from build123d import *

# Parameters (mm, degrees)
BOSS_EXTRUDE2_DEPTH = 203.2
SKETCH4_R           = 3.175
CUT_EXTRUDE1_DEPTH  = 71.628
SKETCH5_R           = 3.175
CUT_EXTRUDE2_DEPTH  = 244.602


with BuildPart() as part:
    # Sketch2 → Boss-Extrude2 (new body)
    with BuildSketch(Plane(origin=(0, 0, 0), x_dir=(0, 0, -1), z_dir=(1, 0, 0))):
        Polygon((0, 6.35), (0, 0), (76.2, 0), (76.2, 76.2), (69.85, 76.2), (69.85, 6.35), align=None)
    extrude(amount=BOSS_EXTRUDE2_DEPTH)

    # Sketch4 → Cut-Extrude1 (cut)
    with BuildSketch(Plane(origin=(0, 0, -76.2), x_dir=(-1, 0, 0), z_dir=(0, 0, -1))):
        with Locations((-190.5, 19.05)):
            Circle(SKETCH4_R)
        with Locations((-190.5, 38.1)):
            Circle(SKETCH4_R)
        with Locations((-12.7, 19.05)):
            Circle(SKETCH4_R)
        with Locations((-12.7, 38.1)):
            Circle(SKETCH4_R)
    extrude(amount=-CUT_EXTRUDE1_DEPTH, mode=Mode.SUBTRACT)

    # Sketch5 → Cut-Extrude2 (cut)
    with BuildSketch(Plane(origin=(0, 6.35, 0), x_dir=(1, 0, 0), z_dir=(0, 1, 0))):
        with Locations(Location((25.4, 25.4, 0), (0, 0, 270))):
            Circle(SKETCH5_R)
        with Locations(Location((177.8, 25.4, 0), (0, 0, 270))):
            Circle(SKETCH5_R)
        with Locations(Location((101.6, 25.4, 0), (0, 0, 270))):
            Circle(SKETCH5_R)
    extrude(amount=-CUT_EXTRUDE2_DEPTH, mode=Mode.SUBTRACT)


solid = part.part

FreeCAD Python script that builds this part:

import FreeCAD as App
import Part
import Sketcher
from FreeCAD import Vector
Q = App.Units.Quantity

doc = App.newDocument("Part")
body = doc.addObject("PartDesign::Body", "Body")

# Sketch on YZ plane
sketch1 = body.newObject("Sketcher::SketchObject", "Sketch")
sketch1.AttachmentSupport = (doc.getObject("YZ_Plane"), [""])
sketch1.MapMode = "FlatFace"
sketch1.addGeometry([
    Part.LineSegment(Vector(6, 0, 0), Vector(0, 0, 0)),  # 0
    Part.LineSegment(Vector(0, 0, 0), Vector(0, -76, 0)),  # 1
    Part.LineSegment(Vector(0, -76, 0), Vector(76, -76, 0)),  # 2
    Part.LineSegment(Vector(76, -76, 0), Vector(76, -70, 0)),  # 3
    Part.LineSegment(Vector(76, -70, 0), Vector(6, -70, 0)),  # 4
    Part.LineSegment(Vector(6, -70, 0), Vector(6, 0, 0)),  # 5
], False)
sketch1.addConstraint([
    Sketcher.Constraint("Coincident", 0, 2, 1, 1),
    Sketcher.Constraint("Coincident", 1, 2, 2, 1),
    Sketcher.Constraint("Coincident", 2, 2, 3, 1),
    Sketcher.Constraint("Coincident", 3, 2, 4, 1),
    Sketcher.Constraint("Coincident", 4, 2, 5, 1),
    Sketcher.Constraint("Coincident", 5, 2, 0, 1),
    Sketcher.Constraint("Horizontal", 0),
    Sketcher.Constraint("Vertical", 1),
    Sketcher.Constraint("Horizontal", 2),
    Sketcher.Constraint("Vertical", 3),
    Sketcher.Constraint("Horizontal", 4),
    Sketcher.Constraint("Vertical", 5),
    Sketcher.Constraint("Coincident", 0, 2, -1, 1),
    Sketcher.Constraint("Equal", 2, 1),
    Sketcher.Constraint("Equal", 0, 3),
    Sketcher.Constraint("DistanceX", 2, 1, 2, 2, Q("3 in")),
    Sketcher.Constraint("DistanceX", 0, 2, 0, 1, Q("0.25 in")),
])
pad1 = body.newObject("PartDesign::Pad", "Pad")
pad1.Profile = sketch1
pad1.Length = Q("8 in")

# Sketch on XY plane
sketch2 = body.newObject("Sketcher::SketchObject", "Sketch001")
sketch2.AttachmentSupport = (doc.getObject("XY_Plane"), [""])
sketch2.MapMode = "FlatFace"
sketch2.AttachmentOffset = App.Placement(Vector(0, 0, -3 * 25.4), App.Rotation())
sketch2.addGeometry([
    Part.Circle(Vector(190.5, 19.1, 0), Vector(0, 0, 1), 3.2),
    Part.Circle(Vector(190.5, 38.1, 0), Vector(0, 0, 1), 3.2),
    Part.Circle(Vector(12.7, 19.1, 0), Vector(0, 0, 1), 3.2),
    Part.Circle(Vector(12.7, 38.1, 0), Vector(0, 0, 1), 3.2),
], False)
sketch2.addConstraint([
    Sketcher.Constraint("Equal", 0, 1),
    Sketcher.Constraint("Equal", 1, 2),
    Sketcher.Constraint("Equal", 2, 3),
    Sketcher.Constraint("Horizontal", 0, 3, 2, 3),
    Sketcher.Constraint("Horizontal", 1, 3, 3, 3),
    Sketcher.Constraint("Vertical", 0, 3, 1, 3),
    Sketcher.Constraint("Vertical", 2, 3, 3, 3),
    Sketcher.Constraint("Diameter", 0, Q("0.25 in")),
    Sketcher.Constraint("DistanceX", 2, 3, 0, 3, Q("7 in")),
    Sketcher.Constraint("DistanceX", -1, 1, 0, 3, Q("7.5 in")),
    Sketcher.Constraint("DistanceY", -1, 1, 1, 3, Q("1.5 in")),
    Sketcher.Constraint("DistanceY", -1, 1, 0, 3, Q("0.75 in")),
])
pocket1 = body.newObject("PartDesign::Pocket", "Pocket")
pocket1.Profile = sketch2
pocket1.Length = Q("2.82 in")
pocket1.Reversed = True

# Sketch on XZ plane
sketch3 = body.newObject("Sketcher::SketchObject", "Sketch002")
sketch3.AttachmentSupport = (doc.getObject("XZ_Plane"), [""])
sketch3.MapMode = "FlatFace"
sketch3.AttachmentOffset = App.Placement(Vector(0, 0, -0.25 * 25.4), App.Rotation())
sketch3.addGeometry([
    Part.Circle(Vector(25.4, -25.4, 0), Vector(0, 0, 1), 3.2),
    Part.Circle(Vector(177.8, -25.4, 0), Vector(0, 0, 1), 3.2),
    Part.Circle(Vector(101.6, -25.4, 0), Vector(0, 0, 1), 3.2),
], False)
sketch3.addConstraint([
    Sketcher.Constraint("Equal", 0, 1),
    Sketcher.Constraint("Equal", 1, 2),
    Sketcher.Constraint("Horizontal", 0, 3, 1, 3),
    Sketcher.Constraint("Horizontal", 1, 3, 2, 3),
    Sketcher.Constraint("Diameter", 0, Q("0.25 in")),
    Sketcher.Constraint("DistanceX", -1, 1, 0, 3, Q("1 in")),
    Sketcher.Constraint("DistanceY", 0, 3, -1, 1, Q("1 in")),
    Sketcher.Constraint("DistanceX", -1, 1, 1, 3, Q("7 in")),
    Sketcher.Constraint("DistanceX", -1, 1, 2, 3, Q("4 in")),
])
pocket2 = body.newObject("PartDesign::Pocket", "Pocket001")
pocket2.Profile = sketch3
pocket2.Length = Q("9.63 in")
pocket2.Reversed = True

doc.recompute()
